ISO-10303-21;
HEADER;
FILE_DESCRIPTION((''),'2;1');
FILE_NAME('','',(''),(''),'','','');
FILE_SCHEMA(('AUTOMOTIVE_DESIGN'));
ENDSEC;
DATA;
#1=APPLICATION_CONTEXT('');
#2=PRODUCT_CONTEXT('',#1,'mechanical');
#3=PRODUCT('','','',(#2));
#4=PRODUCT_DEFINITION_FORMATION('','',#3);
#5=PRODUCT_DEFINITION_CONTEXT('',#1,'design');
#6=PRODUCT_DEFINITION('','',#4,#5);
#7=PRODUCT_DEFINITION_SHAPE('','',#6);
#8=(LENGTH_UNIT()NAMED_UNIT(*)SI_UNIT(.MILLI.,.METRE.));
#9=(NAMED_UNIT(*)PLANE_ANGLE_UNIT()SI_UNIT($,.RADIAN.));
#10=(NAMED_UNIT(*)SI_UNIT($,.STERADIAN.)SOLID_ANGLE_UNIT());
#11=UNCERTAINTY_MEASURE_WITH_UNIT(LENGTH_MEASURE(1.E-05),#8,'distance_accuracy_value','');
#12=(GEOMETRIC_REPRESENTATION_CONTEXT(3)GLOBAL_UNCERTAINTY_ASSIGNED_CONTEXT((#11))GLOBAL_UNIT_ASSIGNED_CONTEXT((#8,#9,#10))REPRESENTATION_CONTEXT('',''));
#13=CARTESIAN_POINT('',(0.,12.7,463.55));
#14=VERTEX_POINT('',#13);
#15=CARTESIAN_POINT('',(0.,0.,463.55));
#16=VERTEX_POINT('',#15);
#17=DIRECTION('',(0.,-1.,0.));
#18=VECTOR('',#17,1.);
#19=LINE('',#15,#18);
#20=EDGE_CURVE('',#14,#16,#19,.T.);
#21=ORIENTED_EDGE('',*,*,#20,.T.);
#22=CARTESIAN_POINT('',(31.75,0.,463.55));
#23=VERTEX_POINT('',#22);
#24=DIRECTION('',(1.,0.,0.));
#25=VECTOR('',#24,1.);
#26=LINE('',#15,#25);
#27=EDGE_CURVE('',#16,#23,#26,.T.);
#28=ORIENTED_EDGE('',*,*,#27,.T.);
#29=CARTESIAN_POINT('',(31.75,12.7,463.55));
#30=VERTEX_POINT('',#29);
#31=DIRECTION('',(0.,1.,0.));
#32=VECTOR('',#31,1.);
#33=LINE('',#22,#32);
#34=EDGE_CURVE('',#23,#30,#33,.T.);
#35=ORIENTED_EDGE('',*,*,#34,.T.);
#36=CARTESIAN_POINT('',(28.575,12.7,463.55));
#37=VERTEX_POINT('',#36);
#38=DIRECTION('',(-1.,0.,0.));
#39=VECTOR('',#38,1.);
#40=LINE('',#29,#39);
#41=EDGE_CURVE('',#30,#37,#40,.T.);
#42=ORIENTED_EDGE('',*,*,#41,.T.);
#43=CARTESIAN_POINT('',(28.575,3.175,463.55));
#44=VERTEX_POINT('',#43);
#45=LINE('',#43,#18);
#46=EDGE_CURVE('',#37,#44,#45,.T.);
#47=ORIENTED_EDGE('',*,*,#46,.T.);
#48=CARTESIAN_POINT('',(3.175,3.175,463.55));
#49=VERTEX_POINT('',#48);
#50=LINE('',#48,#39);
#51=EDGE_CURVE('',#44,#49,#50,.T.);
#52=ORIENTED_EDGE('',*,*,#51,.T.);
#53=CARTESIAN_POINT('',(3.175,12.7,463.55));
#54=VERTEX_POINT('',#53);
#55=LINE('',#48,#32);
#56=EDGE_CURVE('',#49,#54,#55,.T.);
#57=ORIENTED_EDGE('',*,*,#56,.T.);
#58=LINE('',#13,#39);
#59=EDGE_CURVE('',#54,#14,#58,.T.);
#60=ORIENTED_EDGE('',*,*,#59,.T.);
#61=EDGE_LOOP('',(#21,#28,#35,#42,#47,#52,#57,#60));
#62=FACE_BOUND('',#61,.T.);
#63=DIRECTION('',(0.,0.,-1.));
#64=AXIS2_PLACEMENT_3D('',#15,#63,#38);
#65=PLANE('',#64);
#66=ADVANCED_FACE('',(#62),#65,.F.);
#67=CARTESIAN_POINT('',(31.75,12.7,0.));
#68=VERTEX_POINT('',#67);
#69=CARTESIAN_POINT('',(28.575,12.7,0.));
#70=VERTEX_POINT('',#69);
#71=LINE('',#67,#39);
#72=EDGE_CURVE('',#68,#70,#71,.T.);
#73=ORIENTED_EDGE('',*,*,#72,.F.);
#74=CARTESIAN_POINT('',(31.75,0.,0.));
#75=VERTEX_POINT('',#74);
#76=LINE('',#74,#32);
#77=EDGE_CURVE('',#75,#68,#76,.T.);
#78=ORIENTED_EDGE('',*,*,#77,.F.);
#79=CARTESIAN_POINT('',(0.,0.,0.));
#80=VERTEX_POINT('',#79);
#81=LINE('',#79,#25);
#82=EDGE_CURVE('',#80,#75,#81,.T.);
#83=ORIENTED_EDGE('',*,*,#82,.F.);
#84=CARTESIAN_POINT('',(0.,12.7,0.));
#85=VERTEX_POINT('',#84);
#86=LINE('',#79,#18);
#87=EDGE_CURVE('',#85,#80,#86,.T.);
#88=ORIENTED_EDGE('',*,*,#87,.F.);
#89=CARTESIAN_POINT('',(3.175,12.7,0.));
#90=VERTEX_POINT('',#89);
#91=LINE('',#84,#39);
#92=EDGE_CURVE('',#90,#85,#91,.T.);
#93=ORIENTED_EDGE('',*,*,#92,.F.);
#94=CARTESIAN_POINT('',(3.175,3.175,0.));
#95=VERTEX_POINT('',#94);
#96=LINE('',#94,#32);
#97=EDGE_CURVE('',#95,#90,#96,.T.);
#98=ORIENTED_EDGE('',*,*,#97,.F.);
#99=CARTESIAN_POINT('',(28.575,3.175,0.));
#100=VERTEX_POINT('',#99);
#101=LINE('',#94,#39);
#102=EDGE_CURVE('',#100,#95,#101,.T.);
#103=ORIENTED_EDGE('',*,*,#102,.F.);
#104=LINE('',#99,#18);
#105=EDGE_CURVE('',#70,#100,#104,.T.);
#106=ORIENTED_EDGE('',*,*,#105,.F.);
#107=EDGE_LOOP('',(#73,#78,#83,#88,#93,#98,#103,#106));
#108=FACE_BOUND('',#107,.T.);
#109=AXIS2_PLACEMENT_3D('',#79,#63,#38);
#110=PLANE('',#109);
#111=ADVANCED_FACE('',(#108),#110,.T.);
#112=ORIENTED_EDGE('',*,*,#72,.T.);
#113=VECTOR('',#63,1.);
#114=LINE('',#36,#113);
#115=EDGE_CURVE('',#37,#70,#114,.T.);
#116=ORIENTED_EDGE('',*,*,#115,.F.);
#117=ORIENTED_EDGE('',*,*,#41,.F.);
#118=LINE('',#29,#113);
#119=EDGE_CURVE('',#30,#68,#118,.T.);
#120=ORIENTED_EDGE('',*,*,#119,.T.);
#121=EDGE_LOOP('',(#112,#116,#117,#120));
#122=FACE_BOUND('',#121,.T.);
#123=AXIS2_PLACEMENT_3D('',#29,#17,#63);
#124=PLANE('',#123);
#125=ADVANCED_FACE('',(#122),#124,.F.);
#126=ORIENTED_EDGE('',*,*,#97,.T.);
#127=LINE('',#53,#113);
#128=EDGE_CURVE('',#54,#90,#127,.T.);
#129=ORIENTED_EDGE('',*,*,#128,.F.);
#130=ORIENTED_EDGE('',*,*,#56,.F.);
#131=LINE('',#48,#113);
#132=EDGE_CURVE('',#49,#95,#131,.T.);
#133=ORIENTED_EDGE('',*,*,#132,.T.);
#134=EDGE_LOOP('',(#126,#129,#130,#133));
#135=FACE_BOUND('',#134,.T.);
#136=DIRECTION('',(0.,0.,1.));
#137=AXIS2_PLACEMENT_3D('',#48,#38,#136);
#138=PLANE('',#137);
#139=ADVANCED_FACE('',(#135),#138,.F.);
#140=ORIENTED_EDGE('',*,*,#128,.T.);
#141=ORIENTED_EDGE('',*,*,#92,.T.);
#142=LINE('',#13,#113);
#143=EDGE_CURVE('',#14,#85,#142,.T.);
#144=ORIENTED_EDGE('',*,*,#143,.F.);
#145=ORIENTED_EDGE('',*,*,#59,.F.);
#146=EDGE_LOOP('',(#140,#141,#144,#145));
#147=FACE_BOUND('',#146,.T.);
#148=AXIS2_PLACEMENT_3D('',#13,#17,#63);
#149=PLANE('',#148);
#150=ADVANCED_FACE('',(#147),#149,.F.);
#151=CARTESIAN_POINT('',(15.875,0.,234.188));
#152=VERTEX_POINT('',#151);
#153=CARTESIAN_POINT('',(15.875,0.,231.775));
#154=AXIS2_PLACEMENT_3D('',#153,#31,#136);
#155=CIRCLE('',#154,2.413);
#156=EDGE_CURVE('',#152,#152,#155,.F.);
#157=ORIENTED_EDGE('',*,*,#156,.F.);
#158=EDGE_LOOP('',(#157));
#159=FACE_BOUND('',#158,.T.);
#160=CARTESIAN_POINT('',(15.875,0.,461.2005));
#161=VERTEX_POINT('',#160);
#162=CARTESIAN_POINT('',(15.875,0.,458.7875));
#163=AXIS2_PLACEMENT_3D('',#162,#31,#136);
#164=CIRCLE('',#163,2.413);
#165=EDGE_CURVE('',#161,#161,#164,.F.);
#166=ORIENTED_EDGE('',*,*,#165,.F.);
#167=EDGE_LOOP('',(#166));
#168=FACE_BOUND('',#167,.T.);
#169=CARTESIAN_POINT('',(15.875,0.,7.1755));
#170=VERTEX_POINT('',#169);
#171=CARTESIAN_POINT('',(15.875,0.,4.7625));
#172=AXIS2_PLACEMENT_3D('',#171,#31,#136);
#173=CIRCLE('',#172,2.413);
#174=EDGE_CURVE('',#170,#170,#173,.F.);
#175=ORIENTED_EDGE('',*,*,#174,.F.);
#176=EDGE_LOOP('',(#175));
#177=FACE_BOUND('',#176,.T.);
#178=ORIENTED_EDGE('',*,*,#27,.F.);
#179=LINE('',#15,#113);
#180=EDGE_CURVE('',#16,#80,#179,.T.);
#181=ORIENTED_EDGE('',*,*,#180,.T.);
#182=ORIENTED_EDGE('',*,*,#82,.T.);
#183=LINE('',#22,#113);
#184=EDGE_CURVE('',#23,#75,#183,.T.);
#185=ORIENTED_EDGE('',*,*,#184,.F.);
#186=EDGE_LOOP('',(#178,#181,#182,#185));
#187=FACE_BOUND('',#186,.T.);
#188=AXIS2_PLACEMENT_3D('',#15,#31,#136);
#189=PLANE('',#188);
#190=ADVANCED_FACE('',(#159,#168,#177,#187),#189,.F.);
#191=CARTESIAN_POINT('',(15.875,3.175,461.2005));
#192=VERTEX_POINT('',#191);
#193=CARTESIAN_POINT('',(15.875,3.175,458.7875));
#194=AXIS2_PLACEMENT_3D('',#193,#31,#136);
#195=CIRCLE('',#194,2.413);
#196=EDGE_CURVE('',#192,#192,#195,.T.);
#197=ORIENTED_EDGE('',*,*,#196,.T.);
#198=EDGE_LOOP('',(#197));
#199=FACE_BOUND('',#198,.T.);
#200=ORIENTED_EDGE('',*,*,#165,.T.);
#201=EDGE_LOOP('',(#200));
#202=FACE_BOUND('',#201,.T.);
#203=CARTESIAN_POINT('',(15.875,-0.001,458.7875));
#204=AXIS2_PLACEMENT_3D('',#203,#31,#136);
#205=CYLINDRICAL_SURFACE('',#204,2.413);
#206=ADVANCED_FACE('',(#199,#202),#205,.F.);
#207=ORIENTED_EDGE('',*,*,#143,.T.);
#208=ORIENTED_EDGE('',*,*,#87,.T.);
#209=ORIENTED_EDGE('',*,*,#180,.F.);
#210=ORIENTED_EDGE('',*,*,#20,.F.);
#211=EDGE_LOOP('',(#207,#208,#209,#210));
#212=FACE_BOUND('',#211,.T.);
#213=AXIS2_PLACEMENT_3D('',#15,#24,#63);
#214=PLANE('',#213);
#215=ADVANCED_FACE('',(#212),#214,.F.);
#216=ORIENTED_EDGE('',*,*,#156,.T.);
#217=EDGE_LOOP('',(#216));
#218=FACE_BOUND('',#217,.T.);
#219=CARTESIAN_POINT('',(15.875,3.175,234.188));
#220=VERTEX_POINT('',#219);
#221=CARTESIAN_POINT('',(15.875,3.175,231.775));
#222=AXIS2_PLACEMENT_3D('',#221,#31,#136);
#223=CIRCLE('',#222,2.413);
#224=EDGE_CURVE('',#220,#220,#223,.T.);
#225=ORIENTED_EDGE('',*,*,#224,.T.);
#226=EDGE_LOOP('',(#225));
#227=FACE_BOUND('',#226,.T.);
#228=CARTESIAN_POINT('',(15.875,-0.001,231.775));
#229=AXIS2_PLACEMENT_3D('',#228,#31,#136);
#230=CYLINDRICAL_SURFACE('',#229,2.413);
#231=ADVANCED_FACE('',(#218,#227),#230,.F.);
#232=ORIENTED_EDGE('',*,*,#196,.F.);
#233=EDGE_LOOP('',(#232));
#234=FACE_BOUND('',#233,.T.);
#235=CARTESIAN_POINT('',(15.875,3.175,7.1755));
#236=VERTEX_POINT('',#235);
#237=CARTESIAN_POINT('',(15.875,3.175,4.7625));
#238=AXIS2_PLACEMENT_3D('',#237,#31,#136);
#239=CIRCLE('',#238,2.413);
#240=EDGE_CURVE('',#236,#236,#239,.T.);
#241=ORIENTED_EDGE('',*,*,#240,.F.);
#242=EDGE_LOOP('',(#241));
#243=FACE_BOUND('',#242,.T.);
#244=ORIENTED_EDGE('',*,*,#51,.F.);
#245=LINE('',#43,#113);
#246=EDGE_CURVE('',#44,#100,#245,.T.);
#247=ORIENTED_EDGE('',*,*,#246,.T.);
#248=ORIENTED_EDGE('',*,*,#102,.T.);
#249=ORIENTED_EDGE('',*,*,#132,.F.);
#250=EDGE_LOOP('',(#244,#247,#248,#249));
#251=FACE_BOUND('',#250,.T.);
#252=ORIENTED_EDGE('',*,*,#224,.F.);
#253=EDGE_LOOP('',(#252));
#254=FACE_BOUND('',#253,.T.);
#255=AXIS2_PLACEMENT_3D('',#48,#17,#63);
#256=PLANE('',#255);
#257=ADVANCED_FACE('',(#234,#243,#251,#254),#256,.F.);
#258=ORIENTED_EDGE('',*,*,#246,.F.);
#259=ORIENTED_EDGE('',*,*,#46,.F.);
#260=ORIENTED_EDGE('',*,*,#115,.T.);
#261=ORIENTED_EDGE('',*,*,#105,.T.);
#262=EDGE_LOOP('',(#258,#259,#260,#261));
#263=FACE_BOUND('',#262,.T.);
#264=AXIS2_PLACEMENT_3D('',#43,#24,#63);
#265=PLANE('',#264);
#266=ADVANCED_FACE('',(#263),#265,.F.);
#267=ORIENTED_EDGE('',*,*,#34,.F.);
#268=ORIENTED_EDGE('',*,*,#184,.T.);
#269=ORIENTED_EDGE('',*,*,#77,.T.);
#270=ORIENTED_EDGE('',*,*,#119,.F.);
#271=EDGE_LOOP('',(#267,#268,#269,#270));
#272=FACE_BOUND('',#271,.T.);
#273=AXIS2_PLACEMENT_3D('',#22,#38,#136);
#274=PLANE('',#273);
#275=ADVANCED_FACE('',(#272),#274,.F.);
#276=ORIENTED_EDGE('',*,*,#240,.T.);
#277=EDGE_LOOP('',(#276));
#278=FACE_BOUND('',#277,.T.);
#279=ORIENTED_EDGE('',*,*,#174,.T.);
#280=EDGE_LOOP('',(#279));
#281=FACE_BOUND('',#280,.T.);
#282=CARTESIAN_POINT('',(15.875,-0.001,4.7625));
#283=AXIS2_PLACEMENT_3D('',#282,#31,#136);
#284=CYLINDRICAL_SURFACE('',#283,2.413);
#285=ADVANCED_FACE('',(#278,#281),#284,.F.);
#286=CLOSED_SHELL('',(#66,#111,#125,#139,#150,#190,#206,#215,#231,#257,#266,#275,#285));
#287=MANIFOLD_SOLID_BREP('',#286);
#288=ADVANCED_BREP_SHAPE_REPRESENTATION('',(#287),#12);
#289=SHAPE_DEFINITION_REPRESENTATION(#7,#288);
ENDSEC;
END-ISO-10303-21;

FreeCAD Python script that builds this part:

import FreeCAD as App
import Part
import Sketcher

V = App.Vector
Q = App.Units.Quantity


def add_polygon(sketch, points):
    """Adds a closed chain of lines whose ends are joined by coincident constraints."""
    first, n = sketch.GeometryCount, len(points)
    for a, b in zip(points, points[1:] + points[:1]):
        sketch.addGeometry(Part.LineSegment(App.Vector(*a, 0), App.Vector(*b, 0)), False)
    for i in range(n):
        sketch.addConstraint(Sketcher.Constraint("Coincident", first + i, 2, first + (i + 1) % n, 1))

doc = App.newDocument("Part")
body = doc.addObject("PartDesign::Body", "Body")

sketch1 = body.newObject("Sketcher::SketchObject", "Sketch")
sketch1.AttachmentSupport = (doc.getObject("XY_Plane"), [""])
sketch1.MapMode = "FlatFace"
add_polygon(sketch1, [(3.175, 3.175), (3.175, 12.7), (0, 12.7), (0, 0), (31.75, 0), (31.75, 12.7), (28.575, 12.7), (28.575, 3.175)])
sketch1.addConstraint([
    Sketcher.Constraint("Vertical", 0),
    Sketcher.Constraint("Horizontal", 1),
    Sketcher.Constraint("Vertical", 2),
    Sketcher.Constraint("Horizontal", 3),
    Sketcher.Constraint("Vertical", 4),
    Sketcher.Constraint("Horizontal", 5),
    Sketcher.Constraint("Vertical", 6),
    Sketcher.Constraint("Horizontal", 7),
    Sketcher.Constraint("Coincident", 2, 2, -1, 1),
    Sketcher.Constraint("Horizontal", 1, 2, 4, 2),
    Sketcher.Constraint("Equal", 1, 5),
    Sketcher.Constraint("DistanceX", 7, 2, 7, 1, Q("1 in")),
    Sketcher.Constraint("DistanceY", 2, 2, 2, 1, Q("0.5 in")),
    Sketcher.Constraint("DistanceX", 3, 1, 3, 2, Q("1.25 in")),
    Sketcher.Constraint("DistanceY", 0, 1, 0, 2, Q("0.375 in")),
])
pad1 = body.newObject("PartDesign::Pad", "Pad")
pad1.Profile = sketch1
pad1.Length = Q("18.25 in")

sketch2 = body.newObject("Sketcher::SketchObject", "Sketch001")
sketch2.AttachmentSupport = (doc.getObject("XZ_Plane"), [""])
sketch2.MapMode = "FlatFace"
sketch2.AttachmentOffset = App.Placement(V(0, 0, -0.125 * 25.4), App.Rotation())
sketch2.addGeometry(Part.Circle(V(15.875, 458.7875, 0), V(0, 0, 1), 2.413), False)
sketch2.addConstraint([
    Sketcher.Constraint("Diameter", 0, Q("0.19 in")),
    Sketcher.Constraint("DistanceX", -1, 1, 0, 3, Q("0.625 in")),
    Sketcher.Constraint("DistanceY", -1, 1, 0, 3, Q("18.0625 in")),
])
pocket1 = body.newObject("PartDesign::Pocket", "Pocket")
pocket1.Profile = sketch2
pocket1.Type = "UpToFirst"
pocket1.Reversed = True

sketch3 = body.newObject("Sketcher::SketchObject", "Sketch002")
sketch3.AttachmentSupport = (doc.getObject("XZ_Plane"), [""])
sketch3.MapMode = "FlatFace"
sketch3.AttachmentOffset = App.Placement(V(0, 0, -0.125 * 25.4), App.Rotation())
sketch3.addGeometry(Part.Circle(V(15.875, 4.7625, 0), V(0, 0, 1), 2.413), False)
sketch3.addConstraint([
    Sketcher.Constraint("Diameter", 0, Q("0.19 in")),
    Sketcher.Constraint("DistanceX", -1, 1, 0, 3, Q("0.625 in")),
    Sketcher.Constraint("DistanceY", -1, 1, 0, 3, Q("0.1875 in")),
])
pocket2 = body.newObject("PartDesign::Pocket", "Pocket001")
pocket2.Profile = sketch3
pocket2.Type = "UpToFirst"
pocket2.Reversed = True

sketch4 = body.newObject("Sketcher::SketchObject", "Sketch003")
sketch4.AttachmentSupport = (doc.getObject("XZ_Plane"), [""])
sketch4.MapMode = "FlatFace"
sketch4.AttachmentOffset = App.Placement(V(0, 0, -0.125 * 25.4), App.Rotation())
sketch4.addGeometry(Part.Circle(V(15.875, 231.775, 0), V(0, 0, 1), 2.413), False)
sketch4.addConstraint([
    Sketcher.Constraint("Diameter", 0, Q("0.19 in")),
    Sketcher.Constraint("DistanceX", -1, 1, 0, 3, Q("0.625 in")),
    Sketcher.Constraint("DistanceY", -1, 1, 0, 3, Q("9.125 in")),
])
pocket3 = body.newObject("PartDesign::Pocket", "Pocket002")
pocket3.Profile = sketch4
pocket3.Type = "UpToFirst"
pocket3.Reversed = True

doc.recompute()
